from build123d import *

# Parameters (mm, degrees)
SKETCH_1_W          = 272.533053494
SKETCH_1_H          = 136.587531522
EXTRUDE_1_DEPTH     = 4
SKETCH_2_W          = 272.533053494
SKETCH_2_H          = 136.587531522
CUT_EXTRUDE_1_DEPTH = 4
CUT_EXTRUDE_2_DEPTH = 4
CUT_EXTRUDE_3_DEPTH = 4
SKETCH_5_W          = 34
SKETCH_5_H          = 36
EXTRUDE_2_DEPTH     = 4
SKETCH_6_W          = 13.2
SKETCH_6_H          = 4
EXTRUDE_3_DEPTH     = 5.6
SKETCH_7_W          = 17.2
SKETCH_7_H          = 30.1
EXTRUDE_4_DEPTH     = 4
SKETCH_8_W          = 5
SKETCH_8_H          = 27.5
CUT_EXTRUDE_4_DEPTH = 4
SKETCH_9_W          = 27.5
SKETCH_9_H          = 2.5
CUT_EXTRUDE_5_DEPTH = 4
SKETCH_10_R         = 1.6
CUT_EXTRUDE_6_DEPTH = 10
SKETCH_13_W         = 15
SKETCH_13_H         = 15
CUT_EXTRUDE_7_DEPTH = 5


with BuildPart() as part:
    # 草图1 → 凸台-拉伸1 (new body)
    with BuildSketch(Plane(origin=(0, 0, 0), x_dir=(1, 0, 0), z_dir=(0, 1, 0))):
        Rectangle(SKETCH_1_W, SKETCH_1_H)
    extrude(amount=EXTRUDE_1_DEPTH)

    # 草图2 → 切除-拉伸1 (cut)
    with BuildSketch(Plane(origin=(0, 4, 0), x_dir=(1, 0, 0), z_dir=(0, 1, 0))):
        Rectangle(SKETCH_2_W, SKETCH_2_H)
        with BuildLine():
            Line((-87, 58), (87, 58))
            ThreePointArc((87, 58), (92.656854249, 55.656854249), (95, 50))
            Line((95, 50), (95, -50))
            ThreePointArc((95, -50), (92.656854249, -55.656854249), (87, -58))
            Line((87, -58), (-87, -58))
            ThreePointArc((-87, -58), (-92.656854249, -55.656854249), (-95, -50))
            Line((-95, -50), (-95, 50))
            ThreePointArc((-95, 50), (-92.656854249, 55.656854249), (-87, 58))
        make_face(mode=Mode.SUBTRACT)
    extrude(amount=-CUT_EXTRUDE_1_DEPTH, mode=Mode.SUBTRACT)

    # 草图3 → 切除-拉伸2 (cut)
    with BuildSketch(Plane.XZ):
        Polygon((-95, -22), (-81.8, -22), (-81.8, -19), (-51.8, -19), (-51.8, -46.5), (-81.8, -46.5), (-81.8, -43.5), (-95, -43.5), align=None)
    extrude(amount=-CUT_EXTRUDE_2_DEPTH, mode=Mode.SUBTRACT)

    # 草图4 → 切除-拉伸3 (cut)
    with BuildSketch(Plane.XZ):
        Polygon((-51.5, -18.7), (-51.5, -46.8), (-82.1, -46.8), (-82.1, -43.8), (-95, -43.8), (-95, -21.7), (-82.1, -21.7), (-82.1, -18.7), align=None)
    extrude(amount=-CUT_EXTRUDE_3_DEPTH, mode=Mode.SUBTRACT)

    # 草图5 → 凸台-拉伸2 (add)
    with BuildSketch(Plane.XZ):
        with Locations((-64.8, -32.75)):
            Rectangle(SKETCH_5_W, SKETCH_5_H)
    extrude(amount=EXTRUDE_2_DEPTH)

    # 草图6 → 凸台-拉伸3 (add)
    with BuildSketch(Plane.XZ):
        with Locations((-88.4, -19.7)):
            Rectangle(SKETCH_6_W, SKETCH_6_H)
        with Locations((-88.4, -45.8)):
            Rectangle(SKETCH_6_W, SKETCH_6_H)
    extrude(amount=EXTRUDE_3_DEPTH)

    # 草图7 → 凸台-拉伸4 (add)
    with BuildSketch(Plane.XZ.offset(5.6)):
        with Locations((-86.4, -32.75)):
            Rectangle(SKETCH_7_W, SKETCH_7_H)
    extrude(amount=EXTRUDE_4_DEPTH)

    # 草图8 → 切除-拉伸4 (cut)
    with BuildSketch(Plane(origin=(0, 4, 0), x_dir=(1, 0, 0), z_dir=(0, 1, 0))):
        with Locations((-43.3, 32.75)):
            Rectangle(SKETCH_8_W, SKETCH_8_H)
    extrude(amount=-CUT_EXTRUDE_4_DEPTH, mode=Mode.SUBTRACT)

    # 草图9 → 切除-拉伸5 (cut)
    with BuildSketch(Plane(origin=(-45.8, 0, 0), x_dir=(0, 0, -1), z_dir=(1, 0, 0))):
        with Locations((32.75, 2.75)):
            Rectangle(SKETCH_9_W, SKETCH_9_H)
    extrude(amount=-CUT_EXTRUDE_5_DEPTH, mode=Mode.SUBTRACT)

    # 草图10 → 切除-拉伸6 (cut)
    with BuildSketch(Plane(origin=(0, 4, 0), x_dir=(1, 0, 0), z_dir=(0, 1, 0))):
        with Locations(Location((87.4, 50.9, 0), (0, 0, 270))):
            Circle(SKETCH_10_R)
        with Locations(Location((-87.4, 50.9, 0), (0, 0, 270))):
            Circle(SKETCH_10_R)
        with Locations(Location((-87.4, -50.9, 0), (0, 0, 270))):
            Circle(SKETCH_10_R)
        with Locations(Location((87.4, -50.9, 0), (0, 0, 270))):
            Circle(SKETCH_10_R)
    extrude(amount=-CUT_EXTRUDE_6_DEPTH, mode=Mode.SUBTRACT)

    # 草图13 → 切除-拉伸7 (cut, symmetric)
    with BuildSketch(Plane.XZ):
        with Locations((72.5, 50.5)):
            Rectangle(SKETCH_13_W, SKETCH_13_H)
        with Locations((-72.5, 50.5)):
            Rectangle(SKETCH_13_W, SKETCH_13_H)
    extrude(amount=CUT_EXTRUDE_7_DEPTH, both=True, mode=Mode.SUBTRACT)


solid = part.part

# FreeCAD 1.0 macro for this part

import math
import FreeCAD as App
import Part
import Sketcher
from FreeCAD import Vector
Q = App.Units.Quantity


def add_polygon(sketch, points):
    """Adds a closed chain of lines whose ends are joined by coincident constraints."""
    first, n = sketch.GeometryCount, len(points)
    for a, b in zip(points, points[1:] + points[:1]):
        sketch.addGeometry(Part.LineSegment(App.Vector(*a, 0), App.Vector(*b, 0)), False)
    for i in range(n):
        sketch.addConstraint(Sketcher.Constraint("Coincident", first + i, 2, first + (i + 1) % n, 1))

doc = App.newDocument("Part")
body = doc.addObject("PartDesign::Body", "Body")

# Sketch on XZ plane
sketch1 = body.newObject("Sketcher::SketchObject", "Sketch")
sketch1.AttachmentSupport = (doc.getObject("XZ_Plane"), [""])
sketch1.MapMode = "FlatFace"
add_polygon(sketch1, [(-136, -68), (-136, 68), (136, 68), (136, -68)])  # lines 0-3
sketch1.addConstraint(Sketcher.Constraint("Vertical", 0))
sketch1.addConstraint(Sketcher.Constraint("Horizontal", 1))
sketch1.addConstraint(Sketcher.Constraint("Vertical", 2))
sketch1.addConstraint(Sketcher.Constraint("Horizontal", 3))
sketch1.addConstraint(Sketcher.Constraint("Symmetric", 0, 2, 2, 2, -1, 1))
sketch1.addConstraint(Sketcher.Constraint("DistanceY", 0, 1, 0, 2, Q("136.587532 mm")))
sketch1.addConstraint(Sketcher.Constraint("DistanceX", 1, 1, 1, 2, Q("272.533053 mm")))
pad1 = body.newObject("PartDesign::Pad", "Pad")
pad1.Profile = sketch1
pad1.Length = 4
pad1.Reversed = True

# Sketch on XZ plane
sketch2 = body.newObject("Sketcher::SketchObject", "Sketch001")
sketch2.AttachmentSupport = (doc.getObject("XZ_Plane"), [""])
sketch2.MapMode = "FlatFace"
sketch2.AttachmentOffset = App.Placement(Vector(0, 0, -4), App.Rotation())
add_polygon(sketch2, [(-136, -68), (-136, 68), (136, 68), (136, -68)])  # lines 0-3
sketch2.addGeometry(Part.ArcOfCircle(Part.Circle(Vector(-87, -50, 0), Vector(0, 0, 1), 8), math.radians(-180), math.radians(-90)), False)  # 4
sketch2.addGeometry(Part.LineSegment(Vector(-87, -58, 0), Vector(87, -58, 0)), False)  # 5
sketch2.addGeometry(Part.ArcOfCircle(Part.Circle(Vector(87, -50, 0), Vector(0, 0, 1), 8), math.radians(-90), math.radians(0)), False)  # 6
sketch2.addGeometry(Part.LineSegment(Vector(95, -50, 0), Vector(95, 50, 0)), False)  # 7
sketch2.addGeometry(Part.ArcOfCircle(Part.Circle(Vector(87, 50, 0), Vector(0, 0, 1), 8), math.radians(0), math.radians(90)), False)  # 8
sketch2.addGeometry(Part.LineSegment(Vector(87, 58, 0), Vector(-87, 58, 0)), False)  # 9
sketch2.addGeometry(Part.ArcOfCircle(Part.Circle(Vector(-87, 50, 0), Vector(0, 0, 1), 8), math.radians(90), math.radians(180)), False)  # 10
sketch2.addGeometry(Part.LineSegment(Vector(-95, 50, 0), Vector(-95, -50, 0)), False)  # 11
sketch2.addConstraint(Sketcher.Constraint("Tangent", 4, 2, 5, 1))
sketch2.addConstraint(Sketcher.Constraint("Tangent", 5, 2, 6, 1))
sketch2.addConstraint(Sketcher.Constraint("Tangent", 6, 2, 7, 1))
sketch2.addConstraint(Sketcher.Constraint("Tangent", 7, 2, 8, 1))
sketch2.addConstraint(Sketcher.Constraint("Tangent", 8, 2, 9, 1))
sketch2.addConstraint(Sketcher.Constraint("Tangent", 9, 2, 10, 1))
sketch2.addConstraint(Sketcher.Constraint("Tangent", 10, 2, 11, 1))
sketch2.addConstraint(Sketcher.Constraint("Tangent", 11, 2, 4, 1))
sketch2.addConstraint(Sketcher.Constraint("Vertical", 0))
sketch2.addConstraint(Sketcher.Constraint("Horizontal", 1))
sketch2.addConstraint(Sketcher.Constraint("Vertical", 2))
sketch2.addConstraint(Sketcher.Constraint("Horizontal", 3))
sketch2.addConstraint(Sketcher.Constraint("Horizontal", 5))
sketch2.addConstraint(Sketcher.Constraint("Vertical", 7))
sketch2.addConstraint(Sketcher.Constraint("Horizontal", 9))
sketch2.addConstraint(Sketcher.Constraint("Vertical", 11))
sketch2.addConstraint(Sketcher.Constraint("Equal", 4, 6))
sketch2.addConstraint(Sketcher.Constraint("Equal", 6, 8))
sketch2.addConstraint(Sketcher.Constraint("Equal", 8, 10))
sketch2.addConstraint(Sketcher.Constraint("Symmetric", 4, 3, 8, 3, -1, 1))
sketch2.addConstraint(Sketcher.Constraint("Symmetric", 0, 2, 2, 2, -1, 1))
sketch2.addConstraint(Sketcher.Constraint("Radius", 4, Q("8 mm")))
sketch2.addConstraint(Sketcher.Constraint("DistanceX", 5, 1, 5, 2, Q("174 mm")))
sketch2.addConstraint(Sketcher.Constraint("DistanceY", 7, 1, 7, 2, Q("100 mm")))
sketch2.addConstraint(Sketcher.Constraint("DistanceY", 0, 1, 0, 2, Q("136.587532 mm")))
sketch2.addConstraint(Sketcher.Constraint("DistanceX", 1, 1, 1, 2, Q("272.533053 mm")))
pocket1 = body.newObject("PartDesign::Pocket", "Pocket")
pocket1.Profile = sketch2
pocket1.Length = 4
pocket1.Reversed = True

# Sketch on XZ plane
sketch3 = body.newObject("Sketcher::SketchObject", "Sketch002")
sketch3.AttachmentSupport = (doc.getObject("XZ_Plane"), [""])
sketch3.MapMode = "FlatFace"
add_polygon(sketch3, [(-81.8, -22), (-95, -22), (-95, -43.5), (-81.8, -43.5), (-81.8, -46.5), (-51.8, -46.5), (-51.8, -19), (-81.8, -19)])  # lines 0-7
sketch3.addConstraint(Sketcher.Constraint("Horizontal", 0))
sketch3.addConstraint(Sketcher.Constraint("Vertical", 1))
sketch3.addConstraint(Sketcher.Constraint("Horizontal", 2))
sketch3.addConstraint(Sketcher.Constraint("Vertical", 3))
sketch3.addConstraint(Sketcher.Constraint("Horizontal", 4))
sketch3.addConstraint(Sketcher.Constraint("Vertical", 5))
sketch3.addConstraint(Sketcher.Constraint("Horizontal", 6))
sketch3.addConstraint(Sketcher.Constraint("Vertical", 7))
sketch3.addConstraint(Sketcher.Constraint("Vertical", 3, 2, 6, 2))
sketch3.addConstraint(Sketcher.Constraint("Equal", 3, 7))
sketch3.addConstraint(Sketcher.Constraint("DistanceX", 4, 1, 4, 2, Q("30 mm")))
sketch3.addConstraint(Sketcher.Constraint("DistanceY", 3, 2, 3, 1, Q("3 mm")))
sketch3.addConstraint(Sketcher.Constraint("DistanceX", 0, 2, 0, 1, Q("13.2 mm")))
sketch3.addConstraint(Sketcher.Constraint("DistanceY", 1, 2, 1, 1, Q("21.5 mm")))
sketch3.addConstraint(Sketcher.Constraint("DistanceX", 0, 2, -1, 1, Q("95 mm")))
sketch3.addConstraint(Sketcher.Constraint("DistanceY", 0, 2, -1, 1, Q("22 mm")))
pocket2 = body.newObject("PartDesign::Pocket", "Pocket001")
pocket2.Profile = sketch3
pocket2.Length = 4

# Sketch on XZ plane
sketch4 = body.newObject("Sketcher::SketchObject", "Sketch003")
sketch4.AttachmentSupport = (doc.getObject("XZ_Plane"), [""])
sketch4.MapMode = "FlatFace"
add_polygon(sketch4, [(-51.5, -46.8), (-51.5, -18.7), (-82.1, -18.7), (-82.1, -21.7), (-95, -21.7), (-95, -43.8), (-82.1, -43.8), (-82.1, -46.8)])  # lines 0-7
sketch4.addConstraint(Sketcher.Constraint("Vertical", 0))
sketch4.addConstraint(Sketcher.Constraint("Horizontal", 1))
sketch4.addConstraint(Sketcher.Constraint("Vertical", 2))
sketch4.addConstraint(Sketcher.Constraint("Horizontal", 3))
sketch4.addConstraint(Sketcher.Constraint("Vertical", 4))
sketch4.addConstraint(Sketcher.Constraint("Horizontal", 5))
sketch4.addConstraint(Sketcher.Constraint("Vertical", 6))
sketch4.addConstraint(Sketcher.Constraint("Horizontal", 7))
sketch4.addConstraint(Sketcher.Constraint("Vertical", 2, 2, 5, 2))
sketch4.addConstraint(Sketcher.Constraint("Equal", 2, 6))
sketch4.addConstraint(Sketcher.Constraint("DistanceY", 2, 2, 2, 1, Q("3 mm")))
sketch4.addConstraint(Sketcher.Constraint("DistanceX", 1, 2, 1, 1, Q("30.6 mm")))
sketch4.addConstraint(Sketcher.Constraint("DistanceX", 3, 2, 3, 1, Q("12.9 mm")))
sketch4.addConstraint(Sketcher.Constraint("DistanceY", 0, 1, 0, 2, Q("28.1 mm")))
sketch4.addConstraint(Sketcher.Constraint("DistanceX", 3, 2, -1, 1, Q("95 mm")))
sketch4.addConstraint(Sketcher.Constraint("DistanceY", 0, 2, -1, 1, Q("18.7 mm")))
pocket3 = body.newObject("PartDesign::Pocket", "Pocket002")
pocket3.Profile = sketch4
pocket3.Length = 4

# Sketch on XZ plane
sketch5 = body.newObject("Sketcher::SketchObject", "Sketch004")
sketch5.AttachmentSupport = (doc.getObject("XZ_Plane"), [""])
sketch5.MapMode = "FlatFace"
add_polygon(sketch5, [(-82, -15), (-82, -51), (-48, -51), (-48, -15)])  # lines 0-3
sketch5.addConstraint(Sketcher.Constraint("Vertical", 0))
sketch5.addConstraint(Sketcher.Constraint("Horizontal", 1))
sketch5.addConstraint(Sketcher.Constraint("Vertical", 2))
sketch5.addConstraint(Sketcher.Constraint("Horizontal", 3))
sketch5.addConstraint(Sketcher.Constraint("DistanceX", 1, 1, 1, 2, Q("34 mm")))
sketch5.addConstraint(Sketcher.Constraint("DistanceY", 0, 2, 0, 1, Q("36 mm")))
sketch5.addConstraint(Sketcher.Constraint("DistanceX", 0, 2, -1, 1, Q("81.8 mm")))
sketch5.addConstraint(Sketcher.Constraint("DistanceY", 0, 2, -1, 1, Q("50.75 mm")))
pad2 = body.newObject("PartDesign::Pad", "Pad001")
pad2.Profile = sketch5
pad2.Length = 4

# Sketch on XZ plane
sketch6 = body.newObject("Sketcher::SketchObject", "Sketch005")
sketch6.AttachmentSupport = (doc.getObject("XZ_Plane"), [""])
sketch6.MapMode = "FlatFace"
add_polygon(sketch6, [(-95, -17.7), (-95, -21.7), (-81.8, -21.7), (-81.8, -17.7)])  # lines 0-3
add_polygon(sketch6, [(-95, -43.8), (-95, -47.8), (-81.8, -47.8), (-81.8, -43.8)])  # lines 4-7
sketch6.addConstraint(Sketcher.Constraint("Vertical", 0))
sketch6.addConstraint(Sketcher.Constraint("Horizontal", 1))
sketch6.addConstraint(Sketcher.Constraint("Vertical", 2))
sketch6.addConstraint(Sketcher.Constraint("Horizontal", 3))
sketch6.addConstraint(Sketcher.Constraint("Vertical", 4))
sketch6.addConstraint(Sketcher.Constraint("Horizontal", 5))
sketch6.addConstraint(Sketcher.Constraint("Vertical", 6))
sketch6.addConstraint(Sketcher.Constraint("Horizontal", 7))
sketch6.addConstraint(Sketcher.Constraint("Vertical", 3, 2, 4, 2))
sketch6.addConstraint(Sketcher.Constraint("Vertical", 2, 2, 5, 2))
sketch6.addConstraint(Sketcher.Constraint("Equal", 2, 4))
sketch6.addConstraint(Sketcher.Constraint("DistanceY", 0, 2, 0, 1, Q("4 mm")))
sketch6.addConstraint(Sketcher.Constraint("DistanceX", 1, 1, 1, 2, Q("13.2 mm")))
sketch6.addConstraint(Sketcher.Constraint("DistanceX", 0, 2, -1, 1, Q("95 mm")))
sketch6.addConstraint(Sketcher.Constraint("DistanceY", 0, 2, -1, 1, Q("21.7 mm")))
sketch6.addConstraint(Sketcher.Constraint("DistanceY", 4, 2, -1, 1, Q("47.8 mm")))
pad3 = body.newObject("PartDesign::Pad", "Pad002")
pad3.Profile = sketch6
pad3.Length = 5.6

# Sketch on XZ plane
sketch7 = body.newObject("Sketcher::SketchObject", "Sketch006")
sketch7.AttachmentSupport = (doc.getObject("XZ_Plane"), [""])
sketch7.MapMode = "FlatFace"
sketch7.AttachmentOffset = App.Placement(Vector(0, 0, 5.6), App.Rotation())
add_polygon(sketch7, [(-95, -18), (-95, -48), (-78, -48), (-78, -18)])  # lines 0-3
sketch7.addConstraint(Sketcher.Constraint("Vertical", 0))
sketch7.addConstraint(Sketcher.Constraint("Horizontal", 1))
sketch7.addConstraint(Sketcher.Constraint("Vertical", 2))
sketch7.addConstraint(Sketcher.Constraint("Horizontal", 3))
sketch7.addConstraint(Sketcher.Constraint("DistanceX", 1, 1, 1, 2, Q("17.2 mm")))
sketch7.addConstraint(Sketcher.Constraint("DistanceY", 0, 2, 0, 1, Q("30.1 mm")))
sketch7.addConstraint(Sketcher.Constraint("DistanceX", 0, 2, -1, 1, Q("95 mm")))
sketch7.addConstraint(Sketcher.Constraint("DistanceY", 0, 2, -1, 1, Q("47.8 mm")))
pad4 = body.newObject("PartDesign::Pad", "Pad003")
pad4.Profile = sketch7
pad4.Length = 4

# Sketch on XZ plane
sketch8 = body.newObject("Sketcher::SketchObject", "Sketch007")
sketch8.AttachmentSupport = (doc.getObject("XZ_Plane"), [""])
sketch8.MapMode = "FlatFace"
sketch8.AttachmentOffset = App.Placement(Vector(0, 0, -4), App.Rotation())
add_polygon(sketch8, [(-46, -46), (-46, -19), (-41, -19), (-41, -46)])  # lines 0-3
sketch8.addConstraint(Sketcher.Constraint("Vertical", 0))
sketch8.addConstraint(Sketcher.Constraint("Horizontal", 1))
sketch8.addConstraint(Sketcher.Constraint("Vertical", 2))
sketch8.addConstraint(Sketcher.Constraint("Horizontal", 3))
sketch8.addConstraint(Sketcher.Constraint("DistanceX", 1, 1, 1, 2, Q("5 mm")))
sketch8.addConstraint(Sketcher.Constraint("DistanceY", 0, 1, 0, 2, Q("27.5 mm")))
sketch8.addConstraint(Sketcher.Constraint("DistanceY", 0, 2, -1, 1, Q("19 mm")))
sketch8.addConstraint(Sketcher.Constraint("DistanceX", 0, 2, -1, 1, Q("45.8 mm")))
pocket4 = body.newObject("PartDesign::Pocket", "Pocket003")
pocket4.Profile = sketch8
pocket4.Length = 4
pocket4.Reversed = True

# Sketch on YZ plane
sketch9 = body.newObject("Sketcher::SketchObject", "Sketch008")
sketch9.AttachmentSupport = (doc.getObject("YZ_Plane"), [""])
sketch9.MapMode = "FlatFace"
sketch9.AttachmentOffset = App.Placement(Vector(0, 0, -45.8), App.Rotation())
add_polygon(sketch9, [(4, -19), (1.5, -19), (1.5, -46.5), (4, -46.5)])  # lines 0-3
sketch9.addConstraint(Sketcher.Constraint("Horizontal", 0))
sketch9.addConstraint(Sketcher.Constraint("Vertical", 1))
sketch9.addConstraint(Sketcher.Constraint("Horizontal", 2))
sketch9.addConstraint(Sketcher.Constraint("Vertical", 3))
sketch9.addConstraint(Sketcher.Constraint("DistanceX", 0, 2, 0, 1, Q("2.5 mm")))
sketch9.addConstraint(Sketcher.Constraint("DistanceY", 1, 2, 1, 1, Q("27.5 mm")))
sketch9.addConstraint(Sketcher.Constraint("DistanceY", 0, 2, -1, 1, Q("19 mm")))
sketch9.addConstraint(Sketcher.Constraint("DistanceX", -1, 1, 2, 2, Q("4 mm")))
pocket5 = body.newObject("PartDesign::Pocket", "Pocket004")
pocket5.Profile = sketch9
pocket5.Length = 4

# Sketch on XZ plane
sketch10 = body.newObject("Sketcher::SketchObject", "Sketch009")
sketch10.AttachmentSupport = (doc.getObject("XZ_Plane"), [""])
sketch10.MapMode = "FlatFace"
sketch10.AttachmentOffset = App.Placement(Vector(0, 0, -4), App.Rotation())
sketch10.addGeometry(Part.Circle(Vector(87.4, -50.9, 0), Vector(0, 0, 1), 1.6), False)
sketch10.addGeometry(Part.Circle(Vector(-87.4, -50.9, 0), Vector(0, 0, 1), 1.6), False)
sketch10.addGeometry(Part.Circle(Vector(-87.4, 50.9, 0), Vector(0, 0, 1), 1.6), False)
sketch10.addGeometry(Part.Circle(Vector(87.4, 50.9, 0), Vector(0, 0, 1), 1.6), False)
sketch10.addConstraint(Sketcher.Constraint("Equal", 0, 1))
sketch10.addConstraint(Sketcher.Constraint("Equal", 1, 2))
sketch10.addConstraint(Sketcher.Constraint("Equal", 2, 3))
sketch10.addConstraint(Sketcher.Constraint("Symmetric", 0, 3, 2, 3, -1, 1))
sketch10.addConstraint(Sketcher.Constraint("Symmetric", 1, 3, 3, 3, -1, 1))
sketch10.addConstraint(Sketcher.Constraint("Symmetric", 0, 3, 1, 3, -2))
sketch10.addConstraint(Sketcher.Constraint("Diameter", 0, Q("3.2 mm")))
sketch10.addConstraint(Sketcher.Constraint("DistanceX", -1, 1, 0, 3, Q("87.4 mm")))
sketch10.addConstraint(Sketcher.Constraint("DistanceY", 0, 3, -1, 1, Q("50.9 mm")))
pocket6 = body.newObject("PartDesign::Pocket", "Pocket005")
pocket6.Profile = sketch10
pocket6.Length = 10
pocket6.Reversed = True

# Sketch on XZ plane
sketch11 = body.newObject("Sketcher::SketchObject", "Sketch010")
sketch11.AttachmentSupport = (doc.getObject("XZ_Plane"), [""])
sketch11.MapMode = "FlatFace"
add_polygon(sketch11, [(65, 58), (65, 43), (80, 43), (80, 58)])  # lines 0-3
add_polygon(sketch11, [(-80, 58), (-80, 43), (-65, 43), (-65, 58)])  # lines 4-7
sketch11.addConstraint(Sketcher.Constraint("Vertical", 0))
sketch11.addConstraint(Sketcher.Constraint("Horizontal", 1))
sketch11.addConstraint(Sketcher.Constraint("Vertical", 2))
sketch11.addConstraint(Sketcher.Constraint("Horizontal", 3))
sketch11.addConstraint(Sketcher.Constraint("Vertical", 4))
sketch11.addConstraint(Sketcher.Constraint("Horizontal", 5))
sketch11.addConstraint(Sketcher.Constraint("Vertical", 6))
sketch11.addConstraint(Sketcher.Constraint("Horizontal", 7))
sketch11.addConstraint(Sketcher.Constraint("Symmetric", 1, 2, 4, 2, -2))
sketch11.addConstraint(Sketcher.Constraint("Symmetric", 3, 2, 6, 2, -2))
sketch11.addConstraint(Sketcher.Constraint("Equal", 7, 0))
sketch11.addConstraint(Sketcher.Constraint("DistanceX", 1, 1, 1, 2, Q("15 mm")))
sketch11.addConstraint(Sketcher.Constraint("DistanceX", -1, 1, 0, 2, Q("65 mm")))
sketch11.addConstraint(Sketcher.Constraint("DistanceY", -1, 1, 0, 2, Q("43 mm")))
pocket7 = body.newObject("PartDesign::Pocket", "Pocket006")
pocket7.Profile = sketch11
pocket7.Length = 10
pocket7.Midplane = True

doc.recompute()
